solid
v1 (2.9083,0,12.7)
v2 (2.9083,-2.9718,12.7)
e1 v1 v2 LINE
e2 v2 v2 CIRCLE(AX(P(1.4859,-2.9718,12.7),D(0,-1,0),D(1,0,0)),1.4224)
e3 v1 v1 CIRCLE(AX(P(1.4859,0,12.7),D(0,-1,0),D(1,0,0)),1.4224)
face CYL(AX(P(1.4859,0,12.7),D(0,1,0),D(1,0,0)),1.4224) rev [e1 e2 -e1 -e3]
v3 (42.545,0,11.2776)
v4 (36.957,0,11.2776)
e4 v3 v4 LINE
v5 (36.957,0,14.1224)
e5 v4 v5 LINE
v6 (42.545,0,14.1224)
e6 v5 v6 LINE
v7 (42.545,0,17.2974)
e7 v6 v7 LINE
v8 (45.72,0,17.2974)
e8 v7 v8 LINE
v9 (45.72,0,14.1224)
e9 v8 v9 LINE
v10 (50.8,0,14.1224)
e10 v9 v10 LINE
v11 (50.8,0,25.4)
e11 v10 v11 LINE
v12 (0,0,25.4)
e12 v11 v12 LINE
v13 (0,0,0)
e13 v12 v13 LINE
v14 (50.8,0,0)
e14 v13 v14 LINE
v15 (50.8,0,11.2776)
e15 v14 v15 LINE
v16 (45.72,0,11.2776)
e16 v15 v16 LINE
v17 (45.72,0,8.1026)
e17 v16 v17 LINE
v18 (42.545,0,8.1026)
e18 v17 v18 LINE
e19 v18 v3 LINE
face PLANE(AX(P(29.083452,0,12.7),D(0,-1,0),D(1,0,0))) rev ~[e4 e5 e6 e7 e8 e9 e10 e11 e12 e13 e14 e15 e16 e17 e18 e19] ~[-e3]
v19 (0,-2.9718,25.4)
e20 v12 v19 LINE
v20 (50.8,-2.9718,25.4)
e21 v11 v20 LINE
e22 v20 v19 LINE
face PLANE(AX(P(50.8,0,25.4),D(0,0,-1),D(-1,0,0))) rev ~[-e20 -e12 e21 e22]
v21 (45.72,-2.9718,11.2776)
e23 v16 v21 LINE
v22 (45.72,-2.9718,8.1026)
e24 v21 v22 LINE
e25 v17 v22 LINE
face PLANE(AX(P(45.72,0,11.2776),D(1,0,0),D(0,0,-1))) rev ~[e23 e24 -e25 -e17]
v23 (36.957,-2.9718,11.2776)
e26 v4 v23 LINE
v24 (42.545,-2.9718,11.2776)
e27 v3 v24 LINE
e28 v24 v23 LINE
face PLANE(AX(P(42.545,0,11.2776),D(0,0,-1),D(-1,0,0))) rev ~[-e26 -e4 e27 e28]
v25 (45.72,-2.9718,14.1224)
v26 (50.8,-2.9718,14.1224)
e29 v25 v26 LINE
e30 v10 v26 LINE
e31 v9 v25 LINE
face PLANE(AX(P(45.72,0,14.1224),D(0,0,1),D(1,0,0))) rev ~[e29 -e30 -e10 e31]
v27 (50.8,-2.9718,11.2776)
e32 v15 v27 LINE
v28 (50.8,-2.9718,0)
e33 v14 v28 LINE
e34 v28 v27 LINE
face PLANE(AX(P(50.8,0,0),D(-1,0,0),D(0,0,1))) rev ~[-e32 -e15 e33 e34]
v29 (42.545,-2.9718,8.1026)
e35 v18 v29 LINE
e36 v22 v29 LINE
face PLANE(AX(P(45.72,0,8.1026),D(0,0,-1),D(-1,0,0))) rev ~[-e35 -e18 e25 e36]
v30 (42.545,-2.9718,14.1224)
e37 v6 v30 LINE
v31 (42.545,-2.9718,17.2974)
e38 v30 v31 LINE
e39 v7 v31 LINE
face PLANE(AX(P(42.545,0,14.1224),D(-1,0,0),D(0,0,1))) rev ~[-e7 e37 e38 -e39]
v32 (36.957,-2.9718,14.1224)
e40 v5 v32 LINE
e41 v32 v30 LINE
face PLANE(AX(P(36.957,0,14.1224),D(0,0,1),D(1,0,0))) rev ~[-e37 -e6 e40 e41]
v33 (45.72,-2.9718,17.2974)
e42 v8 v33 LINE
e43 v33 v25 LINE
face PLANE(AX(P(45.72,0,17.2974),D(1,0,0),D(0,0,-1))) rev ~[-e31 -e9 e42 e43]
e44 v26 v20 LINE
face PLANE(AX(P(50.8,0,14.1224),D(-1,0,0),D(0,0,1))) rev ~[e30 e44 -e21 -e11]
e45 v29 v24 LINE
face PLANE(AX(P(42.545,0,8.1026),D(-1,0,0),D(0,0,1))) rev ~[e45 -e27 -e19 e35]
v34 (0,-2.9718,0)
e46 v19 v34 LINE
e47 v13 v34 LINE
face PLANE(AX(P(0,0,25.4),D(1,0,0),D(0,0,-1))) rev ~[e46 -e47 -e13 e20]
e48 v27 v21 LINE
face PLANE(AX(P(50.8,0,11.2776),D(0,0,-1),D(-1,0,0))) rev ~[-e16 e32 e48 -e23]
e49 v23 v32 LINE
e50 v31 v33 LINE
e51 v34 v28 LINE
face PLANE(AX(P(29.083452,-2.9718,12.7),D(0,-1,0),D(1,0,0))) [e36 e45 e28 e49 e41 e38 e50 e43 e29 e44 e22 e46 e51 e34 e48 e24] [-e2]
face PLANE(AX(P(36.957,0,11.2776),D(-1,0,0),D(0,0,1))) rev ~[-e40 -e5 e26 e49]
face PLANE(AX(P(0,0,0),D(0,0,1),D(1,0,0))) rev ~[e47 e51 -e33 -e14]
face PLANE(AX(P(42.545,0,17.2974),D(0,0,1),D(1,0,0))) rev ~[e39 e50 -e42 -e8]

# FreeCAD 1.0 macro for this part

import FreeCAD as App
import Part
import Sketcher

V = App.Vector
Q = App.Units.Quantity


def add_polygon(sketch, points):
    """Adds a closed chain of lines whose ends are joined by coincident constraints."""
    first, n = sketch.GeometryCount, len(points)
    for a, b in zip(points, points[1:] + points[:1]):
        sketch.addGeometry(Part.LineSegment(App.Vector(*a, 0), App.Vector(*b, 0)), False)
    for i in range(n):
        sketch.addConstraint(Sketcher.Constraint("Coincident", first + i, 2, first + (i + 1) % n, 1))

doc = App.newDocument("Part")
body = doc.addObject("PartDesign::Body", "Body")

# Sketch on XZ plane
sketch1 = body.newObject("Sketcher::SketchObject", "Sketch")
sketch1.AttachmentSupport = (doc.getObject("XZ_Plane"), [""])
sketch1.MapMode = "FlatFace"
add_polygon(sketch1, [(0, 25.4), (0, 0), (50.8, 0), (50.8, 11.3), (45.7, 11.3), (45.7, 8.1), (42.5, 8.1), (42.5, 11.3), (37, 11.3), (37, 14.1), (42.5, 14.1), (42.5, 17.3), (45.7, 17.3), (45.7, 14.1), (50.8, 14.1), (50.8, 25.4)])  # lines 0-15
sketch1.addGeometry(Part.Circle(V(1.5, 12.7, 0), V(0, 0, 1), 1.4), False)  # 16
sketch1.addConstraint([
    Sketcher.Constraint("Vertical", 0),
    Sketcher.Constraint("Horizontal", 1),
    Sketcher.Constraint("Vertical", 2),
    Sketcher.Constraint("Horizontal", 3),
    Sketcher.Constraint("Vertical", 4),
    Sketcher.Constraint("Horizontal", 5),
    Sketcher.Constraint("Vertical", 6),
    Sketcher.Constraint("Horizontal", 7),
    Sketcher.Constraint("Vertical", 8),
    Sketcher.Constraint("Horizontal", 9),
    Sketcher.Constraint("Vertical", 10),
    Sketcher.Constraint("Horizontal", 11),
    Sketcher.Constraint("Vertical", 12),
    Sketcher.Constraint("Horizontal", 13),
    Sketcher.Constraint("Vertical", 14),
    Sketcher.Constraint("Horizontal", 15),
    Sketcher.Constraint("Coincident", 0, 2, -1, 1),
    Sketcher.Constraint("Horizontal", 3, 2, 6, 2),
    Sketcher.Constraint("Horizontal", 9, 2, 12, 2),
    Sketcher.Constraint("Vertical", 6, 2, 9, 2),
    Sketcher.Constraint("Vertical", 4, 2, 11, 2),
    Sketcher.Constraint("Vertical", 2, 2, 13, 2),
    Sketcher.Constraint("Equal", 11, 4),
    Sketcher.Constraint("Equal", 6, 10),
    Sketcher.Constraint("Equal", 2, 14),
    Sketcher.Constraint("DistanceX", 1, 1, 1, 2, Q("2 in")),
    Sketcher.Constraint("DistanceY", 0, 2, 0, 1, Q("1 in")),
    Sketcher.Constraint("Diameter", 16, Q("0.112 in")),
    Sketcher.Constraint("DistanceX", 3, 2, 3, 1, Q("0.2 in")),
    Sketcher.Constraint("DistanceX", 7, 2, 7, 1, Q("0.22 in")),
    Sketcher.Constraint("DistanceY", -1, 1, 16, 3, Q("0.5 in")),
    Sketcher.Constraint("DistanceX", 5, 2, 5, 1, Q("0.125 in")),
    Sketcher.Constraint("DistanceY", 2, 1, 2, 2, Q("0.444 in")),
    Sketcher.Constraint("DistanceX", -1, 1, 16, 3, Q("0.0585 in")),
])
pad1 = body.newObject("PartDesign::Pad", "Pad")
pad1.Profile = sketch1
pad1.Length = Q("0.117 in")

doc.recompute()
